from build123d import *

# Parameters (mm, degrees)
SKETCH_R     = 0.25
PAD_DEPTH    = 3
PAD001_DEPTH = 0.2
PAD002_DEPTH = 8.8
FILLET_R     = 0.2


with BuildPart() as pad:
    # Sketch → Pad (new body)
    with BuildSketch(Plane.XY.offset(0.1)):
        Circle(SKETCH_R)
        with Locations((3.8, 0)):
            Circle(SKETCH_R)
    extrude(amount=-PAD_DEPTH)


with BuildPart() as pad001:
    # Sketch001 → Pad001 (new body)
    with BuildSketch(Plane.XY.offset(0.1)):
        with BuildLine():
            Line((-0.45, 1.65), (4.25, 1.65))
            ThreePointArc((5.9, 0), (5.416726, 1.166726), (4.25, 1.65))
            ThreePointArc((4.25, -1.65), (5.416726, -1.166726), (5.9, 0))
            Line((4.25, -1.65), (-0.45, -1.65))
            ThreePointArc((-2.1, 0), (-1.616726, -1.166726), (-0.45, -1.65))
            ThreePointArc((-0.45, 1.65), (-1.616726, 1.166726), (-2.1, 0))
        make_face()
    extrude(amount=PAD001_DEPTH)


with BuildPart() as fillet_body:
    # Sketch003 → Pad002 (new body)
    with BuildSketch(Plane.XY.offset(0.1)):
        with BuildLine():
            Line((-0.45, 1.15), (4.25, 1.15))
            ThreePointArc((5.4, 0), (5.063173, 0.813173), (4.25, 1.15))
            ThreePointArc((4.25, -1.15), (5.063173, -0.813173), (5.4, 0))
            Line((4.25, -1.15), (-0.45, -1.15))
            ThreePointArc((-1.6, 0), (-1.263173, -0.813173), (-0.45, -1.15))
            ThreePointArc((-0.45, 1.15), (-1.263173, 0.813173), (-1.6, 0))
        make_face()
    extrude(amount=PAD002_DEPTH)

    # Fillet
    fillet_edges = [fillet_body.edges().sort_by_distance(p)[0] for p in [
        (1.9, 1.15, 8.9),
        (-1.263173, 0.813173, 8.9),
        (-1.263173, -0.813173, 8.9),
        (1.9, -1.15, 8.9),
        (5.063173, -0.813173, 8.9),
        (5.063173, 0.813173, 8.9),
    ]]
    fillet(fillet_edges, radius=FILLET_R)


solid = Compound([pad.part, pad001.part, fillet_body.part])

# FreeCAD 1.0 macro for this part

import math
import FreeCAD as App
import Part
import Sketcher

V = App.Vector
Q = App.Units.Quantity


def edges_at(feature, points):
    """Names of the edges that pass closest to the given points."""
    edges = feature.Shape.Edges
    near = lambda p: min(range(len(edges)), key=lambda i: edges[i].distToShape(Part.Vertex(*p))[0])
    return sorted({f"Edge{near(p) + 1}" for p in points})

doc = App.newDocument("Part")
body = doc.addObject("PartDesign::Body", "Body")
body.AllowCompound = True

sketch1 = body.newObject("Sketcher::SketchObject", "Sketch")
sketch1.AttachmentSupport = (doc.getObject("XY_Plane"), [""])
sketch1.MapMode = "FlatFace"
sketch1.AttachmentOffset = App.Placement(V(0, 0, 0.1), App.Rotation())
sketch1.addGeometry([
    Part.Circle(V(0, 0, 0), V(0, 0, 1), 0.25),
    Part.Circle(V(3.8, 0, 0), V(0, 0, 1), 0.25),
], False)
sketch1.addConstraint([
    Sketcher.Constraint("Coincident", 0, 3, -1, 1),
    Sketcher.Constraint("Equal", 0, 1),
    Sketcher.Constraint("PointOnObject", 1, 3, -1),
    Sketcher.Constraint("Diameter", 0, Q("0.5 mm")),
    Sketcher.Constraint("DistanceX", -1, 1, 1, 3, Q("3.8 mm")),
])
pad1 = body.newObject("PartDesign::Pad", "Pad")
pad1.Profile = sketch1
pad1.Length = 3
pad1.Reversed = True
body2 = doc.addObject("PartDesign::Body", "Body001")

sketch2 = body2.newObject("Sketcher::SketchObject", "Sketch001")
sketch2.AttachmentSupport = (doc.getObject("XY_Plane001"), [""])
sketch2.MapMode = "FlatFace"
sketch2.AttachmentOffset = App.Placement(V(0, 0, 0.1), App.Rotation())
sketch2.addGeometry([
    Part.LineSegment(V(4.25, 1.65, 0), V(-0.45, 1.65, 0)),
    Part.ArcOfCircle(Part.Circle(V(-0.449999, -0.000001, 0), V(0, 0, 1), 1.650001), math.radians(90.000022), math.radians(179.999978)),
    Part.ArcOfCircle(Part.Circle(V(-0.449999, 0.000001, 0), V(0, 0, 1), 1.650001), math.radians(-179.999978), math.radians(-90.000022)),
    Part.LineSegment(V(-0.45, -1.65, 0), V(4.25, -1.65, 0)),
    Part.ArcOfCircle(Part.Circle(V(4.249999, 0.000001, 0), V(0, 0, 1), 1.650001), math.radians(-89.999978), math.radians(-0.000022)),
    Part.ArcOfCircle(Part.Circle(V(4.249999, -0.000001, 0), V(0, 0, 1), 1.650001), math.radians(0.000022), math.radians(89.999978)),
], False)
sketch2.addConstraint([
    Sketcher.Constraint("Tangent", 0, 2, 1, 1),
    Sketcher.Constraint("Tangent", 1, 2, 2, 1),
    Sketcher.Constraint("Tangent", 2, 2, 3, 1),
    Sketcher.Constraint("Tangent", 3, 2, 4, 1),
    Sketcher.Constraint("Tangent", 4, 2, 5, 1),
    Sketcher.Constraint("Tangent", 5, 2, 0, 1),
    Sketcher.Constraint("Horizontal", 0),
    Sketcher.Constraint("Horizontal", 3),
    Sketcher.Constraint("Equal", 1, 2),
    Sketcher.Constraint("Equal", 2, 4),
    Sketcher.Constraint("PointOnObject", 1, 3, -1),
    Sketcher.Constraint("PointOnObject", 1, 2, -1),
    Sketcher.Constraint("PointOnObject", 4, 2, -1),
    Sketcher.Constraint("Radius", 1, Q("1.650001 mm")),
    Sketcher.Constraint("DistanceX", 0, 2, 0, 1, Q("4.7 mm")),
    Sketcher.Constraint("DistanceX", 1, 2, -1, 1, Q("2.1 mm")),
])
pad2 = body2.newObject("PartDesign::Pad", "Pad001")
pad2.Profile = sketch2
pad2.Length = 0.2
body3 = doc.addObject("PartDesign::Body", "Body002")

sketch3 = body3.newObject("Sketcher::SketchObject", "Sketch002")
sketch3.AttachmentSupport = (doc.getObject("XY_Plane002"), [""])
sketch3.MapMode = "FlatFace"
sketch3.AttachmentOffset = App.Placement(V(0, 0, 0.1), App.Rotation())
sketch3.addGeometry([
    Part.LineSegment(V(4.25, 1.15, 0), V(-0.45, 1.15, 0)),
    Part.ArcOfCircle(Part.Circle(V(-0.450001, 0.000001, 0), V(0, 0, 1), 1.149999), math.radians(89.999966), math.radians(180.000034)),
    Part.ArcOfCircle(Part.Circle(V(-0.450001, -0.000001, 0), V(0, 0, 1), 1.149999), math.radians(179.999966), math.radians(270.000034)),
    Part.LineSegment(V(-0.45, -1.15, 0), V(4.25, -1.15, 0)),
    Part.ArcOfCircle(Part.Circle(V(4.250001, -0.000001, 0), V(0, 0, 1), 1.149999), math.radians(-90.000034), math.radians(0.000034)),
    Part.ArcOfCircle(Part.Circle(V(4.250001, 0.000001, 0), V(0, 0, 1), 1.149999), math.radians(-0.000034), math.radians(90.000034)),
], False)
sketch3.addConstraint([
    Sketcher.Constraint("Tangent", 0, 2, 1, 1),
    Sketcher.Constraint("Tangent", 1, 2, 2, 1),
    Sketcher.Constraint("Tangent", 2, 2, 3, 1),
    Sketcher.Constraint("Tangent", 3, 2, 4, 1),
    Sketcher.Constraint("Tangent", 4, 2, 5, 1),
    Sketcher.Constraint("Tangent", 5, 2, 0, 1),
    Sketcher.Constraint("Horizontal", 0),
    Sketcher.Constraint("Horizontal", 3),
    Sketcher.Constraint("Equal", 1, 2),
    Sketcher.Constraint("Equal", 2, 4),
    Sketcher.Constraint("PointOnObject", 1, 3, -1),
    Sketcher.Constraint("PointOnObject", 1, 2, -1),
    Sketcher.Constraint("PointOnObject", 4, 2, -1),
    Sketcher.Constraint("Radius", 1, Q("1.149999 mm")),
    Sketcher.Constraint("DistanceX", 0, 2, 0, 1, Q("4.7 mm")),
    Sketcher.Constraint("DistanceX", 1, 2, -1, 1, Q("1.6 mm")),
])
pad3 = body3.newObject("PartDesign::Pad", "Pad002")
pad3.Profile = sketch3
pad3.Length = 8.8
doc.recompute()

fillet = body3.newObject("PartDesign::Fillet", "Fillet")
fillet.Base = (pad3, edges_at(pad3, [
    (1.9, 1.15, 8.9),
    (-1.263, 0.813, 8.9),
    (-1.263, -0.813, 8.9),
    (1.9, -1.15, 8.9),
    (5.063, -0.813, 8.9),
    (5.063, 0.813, 8.9),
]))
fillet.Radius = 0.2

doc.recompute()
